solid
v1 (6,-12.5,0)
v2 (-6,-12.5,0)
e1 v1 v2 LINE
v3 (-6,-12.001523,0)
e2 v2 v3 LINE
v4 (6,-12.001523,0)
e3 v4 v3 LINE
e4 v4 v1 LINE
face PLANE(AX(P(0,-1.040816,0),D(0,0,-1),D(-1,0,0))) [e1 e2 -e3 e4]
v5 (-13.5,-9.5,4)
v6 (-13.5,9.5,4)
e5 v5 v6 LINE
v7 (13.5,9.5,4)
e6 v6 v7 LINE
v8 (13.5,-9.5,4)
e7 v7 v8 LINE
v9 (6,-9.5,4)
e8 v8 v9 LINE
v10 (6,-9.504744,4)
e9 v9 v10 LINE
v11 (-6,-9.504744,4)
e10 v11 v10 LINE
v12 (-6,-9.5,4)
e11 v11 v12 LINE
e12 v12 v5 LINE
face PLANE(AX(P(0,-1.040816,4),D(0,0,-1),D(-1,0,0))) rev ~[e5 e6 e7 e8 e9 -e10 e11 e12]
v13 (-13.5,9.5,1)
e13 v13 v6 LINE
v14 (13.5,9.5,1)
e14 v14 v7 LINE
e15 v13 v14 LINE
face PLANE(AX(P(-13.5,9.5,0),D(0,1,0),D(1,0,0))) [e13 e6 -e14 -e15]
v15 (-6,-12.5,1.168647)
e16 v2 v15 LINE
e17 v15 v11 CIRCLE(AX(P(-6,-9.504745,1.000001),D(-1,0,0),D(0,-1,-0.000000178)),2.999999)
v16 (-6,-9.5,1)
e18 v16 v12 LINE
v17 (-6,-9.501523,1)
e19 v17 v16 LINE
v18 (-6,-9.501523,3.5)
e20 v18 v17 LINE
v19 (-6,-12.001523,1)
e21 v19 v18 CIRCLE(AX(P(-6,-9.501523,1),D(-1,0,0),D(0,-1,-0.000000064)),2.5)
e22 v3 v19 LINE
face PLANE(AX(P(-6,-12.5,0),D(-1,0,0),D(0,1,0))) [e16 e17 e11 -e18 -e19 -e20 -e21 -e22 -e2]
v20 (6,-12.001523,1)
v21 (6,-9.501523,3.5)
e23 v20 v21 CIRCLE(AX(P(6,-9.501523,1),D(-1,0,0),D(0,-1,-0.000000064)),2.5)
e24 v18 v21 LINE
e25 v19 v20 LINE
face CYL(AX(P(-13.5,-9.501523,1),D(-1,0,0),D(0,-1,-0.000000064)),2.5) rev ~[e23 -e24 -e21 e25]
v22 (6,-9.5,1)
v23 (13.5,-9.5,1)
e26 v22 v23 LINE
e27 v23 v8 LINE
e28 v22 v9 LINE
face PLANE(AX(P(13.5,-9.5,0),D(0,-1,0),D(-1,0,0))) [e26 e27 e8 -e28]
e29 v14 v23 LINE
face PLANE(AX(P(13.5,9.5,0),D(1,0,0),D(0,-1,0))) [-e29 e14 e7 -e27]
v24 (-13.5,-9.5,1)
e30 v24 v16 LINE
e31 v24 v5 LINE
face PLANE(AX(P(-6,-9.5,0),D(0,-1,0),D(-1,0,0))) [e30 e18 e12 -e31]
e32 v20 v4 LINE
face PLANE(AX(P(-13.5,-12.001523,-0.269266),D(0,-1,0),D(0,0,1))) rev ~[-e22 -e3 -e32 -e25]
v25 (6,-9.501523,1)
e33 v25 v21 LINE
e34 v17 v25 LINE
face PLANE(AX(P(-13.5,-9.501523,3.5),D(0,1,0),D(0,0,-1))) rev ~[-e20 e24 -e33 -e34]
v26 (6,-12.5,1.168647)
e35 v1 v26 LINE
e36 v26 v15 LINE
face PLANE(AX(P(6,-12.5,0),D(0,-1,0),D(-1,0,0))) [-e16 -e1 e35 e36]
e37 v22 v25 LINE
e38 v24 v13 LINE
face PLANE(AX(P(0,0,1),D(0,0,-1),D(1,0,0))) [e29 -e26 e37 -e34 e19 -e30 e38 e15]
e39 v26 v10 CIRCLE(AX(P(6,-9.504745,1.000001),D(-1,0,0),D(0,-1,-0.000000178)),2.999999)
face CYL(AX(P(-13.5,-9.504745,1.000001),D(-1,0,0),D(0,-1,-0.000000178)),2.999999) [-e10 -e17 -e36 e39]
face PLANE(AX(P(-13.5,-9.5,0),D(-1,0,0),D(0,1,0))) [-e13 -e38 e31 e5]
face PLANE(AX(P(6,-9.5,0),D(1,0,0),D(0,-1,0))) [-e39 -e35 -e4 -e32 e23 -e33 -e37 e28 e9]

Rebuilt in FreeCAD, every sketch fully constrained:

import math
import FreeCAD as App
import Part
import Sketcher
Q = App.Units.Quantity

doc = App.newDocument("Part")
params = doc.addObject("Spreadsheet::Sheet", "Params")
for row, (alias, value) in enumerate([
    ("sketch1_width", "27 mm"),
    ("sketch1_width2", "12 mm"),
    ("sketch1_height", "19 mm"),
    ("sketch1_height2", "3 mm"),
    ("pad1_length", "4 mm"),
    ("sketch2_width", "27 mm"),
    ("sketch2_height", "19 mm"),
    ("pocket1_length", "1 mm"),
    ("sketch3_radius", "2.999999 mm"),
    ("pocket2_length", "27 mm"),
    ("sketch4_radius", "2.5 mm"),
    ("pocket3_length", "27 mm"),
], start=1):
    params.set(f"A{row}", alias)
    params.set(f"B{row}", "=" + value)
    params.setAlias(f"B{row}", alias)

body = doc.addObject("PartDesign::Body", "Body")

# Sketch on XY plane
sketch1 = body.newObject("Sketcher::SketchObject", "Sketch")
sketch1.AttachmentSupport = (doc.getObject("XY_Plane"), [""])
sketch1.MapMode = "FlatFace"
sketch1.addGeometry(Part.LineSegment(App.Vector(13.5, 9.5, 0), App.Vector(-13.5, 9.5, 0)), False)
sketch1.addGeometry(Part.LineSegment(App.Vector(-13.5, 9.5, 0), App.Vector(-13.5, -9.5, 0)), False)
sketch1.addGeometry(Part.LineSegment(App.Vector(-13.5, -9.5, 0), App.Vector(-6, -9.5, 0)), False)
sketch1.addGeometry(Part.LineSegment(App.Vector(-6, -9.5, 0), App.Vector(-6, -12.5, 0)), False)
sketch1.addGeometry(Part.LineSegment(App.Vector(-6, -12.5, 0), App.Vector(6, -12.5, 0)), False)
sketch1.addGeometry(Part.LineSegment(App.Vector(6, -12.5, 0), App.Vector(6, -9.5, 0)), False)
sketch1.addGeometry(Part.LineSegment(App.Vector(6, -9.5, 0), App.Vector(13.5, -9.5, 0)), False)
sketch1.addGeometry(Part.LineSegment(App.Vector(13.5, -9.5, 0), App.Vector(13.5, 9.5, 0)), False)
sketch1.addConstraint(Sketcher.Constraint("Coincident", 0, 2, 1, 1))
sketch1.addConstraint(Sketcher.Constraint("Coincident", 1, 2, 2, 1))
sketch1.addConstraint(Sketcher.Constraint("Coincident", 2, 2, 3, 1))
sketch1.addConstraint(Sketcher.Constraint("Coincident", 3, 2, 4, 1))
sketch1.addConstraint(Sketcher.Constraint("Coincident", 4, 2, 5, 1))
sketch1.addConstraint(Sketcher.Constraint("Coincident", 5, 2, 6, 1))
sketch1.addConstraint(Sketcher.Constraint("Coincident", 6, 2, 7, 1))
sketch1.addConstraint(Sketcher.Constraint("Coincident", 7, 2, 0, 1))
sketch1.addConstraint(Sketcher.Constraint("Horizontal", 0))
sketch1.addConstraint(Sketcher.Constraint("Vertical", 1))
sketch1.addConstraint(Sketcher.Constraint("Horizontal", 2))
sketch1.addConstraint(Sketcher.Constraint("Vertical", 3))
sketch1.addConstraint(Sketcher.Constraint("Horizontal", 4))
sketch1.addConstraint(Sketcher.Constraint("Vertical", 5))
sketch1.addConstraint(Sketcher.Constraint("Horizontal", 6))
sketch1.addConstraint(Sketcher.Constraint("Vertical", 7))
sketch1.addConstraint(Sketcher.Constraint("Symmetric", 0, 2, 6, 2, -1, 1))
sketch1.addConstraint(Sketcher.Constraint("Symmetric", 2, 2, 5, 2, -2))
sketch1.addConstraint(Sketcher.Constraint("DistanceX", 0, 2, 0, 1, Q("27 mm")))
sketch1.addConstraint(Sketcher.Constraint("DistanceX", 4, 1, 4, 2, Q("12 mm")))
sketch1.addConstraint(Sketcher.Constraint("DistanceY", 1, 2, 1, 1, Q("19 mm")))
sketch1.addConstraint(Sketcher.Constraint("DistanceY", 3, 2, 3, 1, Q("3 mm")))
sketch1.setExpression("Constraints[18]", "Params.sketch1_width")
sketch1.setExpression("Constraints[19]", "Params.sketch1_width2")
sketch1.setExpression("Constraints[20]", "Params.sketch1_height")
sketch1.setExpression("Constraints[21]", "Params.sketch1_height2")
pad1 = body.newObject("PartDesign::Pad", "Pad")
pad1.Profile = sketch1
pad1.setExpression("Length", "Params.pad1_length")

# Sketch on XY plane
sketch2 = body.newObject("Sketcher::SketchObject", "Sketch001")
sketch2.AttachmentSupport = (doc.getObject("XY_Plane"), [""])
sketch2.MapMode = "FlatFace"
sketch2.addGeometry(Part.LineSegment(App.Vector(-13.5, -9.5, 0), App.Vector(-13.5, 9.5, 0)), False)
sketch2.addGeometry(Part.LineSegment(App.Vector(-13.5, 9.5, 0), App.Vector(13.5, 9.5, 0)), False)
sketch2.addGeometry(Part.LineSegment(App.Vector(13.5, 9.5, 0), App.Vector(13.5, -9.5, 0)), False)
sketch2.addGeometry(Part.LineSegment(App.Vector(13.5, -9.5, 0), App.Vector(-13.5, -9.5, 0)), False)
sketch2.addConstraint(Sketcher.Constraint("Coincident", 0, 2, 1, 1))
sketch2.addConstraint(Sketcher.Constraint("Coincident", 1, 2, 2, 1))
sketch2.addConstraint(Sketcher.Constraint("Coincident", 2, 2, 3, 1))
sketch2.addConstraint(Sketcher.Constraint("Coincident", 3, 2, 0, 1))
sketch2.addConstraint(Sketcher.Constraint("Vertical", 0))
sketch2.addConstraint(Sketcher.Constraint("Horizontal", 1))
sketch2.addConstraint(Sketcher.Constraint("Vertical", 2))
sketch2.addConstraint(Sketcher.Constraint("Horizontal", 3))
sketch2.addConstraint(Sketcher.Constraint("Symmetric", 0, 2, 2, 2, -1, 1))
sketch2.addConstraint(Sketcher.Constraint("DistanceX", 1, 1, 1, 2, Q("27 mm")))
sketch2.addConstraint(Sketcher.Constraint("DistanceY", 0, 1, 0, 2, Q("19 mm")))
sketch2.setExpression("Constraints[9]", "Params.sketch2_width")
sketch2.setExpression("Constraints[10]", "Params.sketch2_height")
pocket1 = body.newObject("PartDesign::Pocket", "Pocket")
pocket1.Profile = sketch2
pocket1.setExpression("Length", "Params.pocket1_length")
pocket1.Reversed = True

# Sketch on YZ plane
sketch3 = body.newObject("Sketcher::SketchObject", "Sketch002")
sketch3.AttachmentSupport = (doc.getObject("YZ_Plane"), [""])
sketch3.MapMode = "FlatFace"
sketch3.AttachmentOffset = App.Placement(App.Vector(0, 0, -13.5), App.Rotation())
sketch3.addGeometry(Part.ArcOfCircle(Part.Circle(App.Vector(-9.504745, 1.000001, 0), App.Vector(0, 0, 1), 2.999999), math.radians(89.99999), math.radians(180.00001)), False)
sketch3.addGeometry(Part.LineSegment(App.Vector(-12.504744, 1, 0), App.Vector(-13.03316, 1, 0)), False)
sketch3.addGeometry(Part.LineSegment(App.Vector(-13.03316, 1, 0), App.Vector(-13.03316, 5.572417, 0)), False)
sketch3.addGeometry(Part.LineSegment(App.Vector(-13.03316, 5.572417, 0), App.Vector(-9.504744, 5.572417, 0)), False)
sketch3.addGeometry(Part.LineSegment(App.Vector(-9.504744, 5.572417, 0), App.Vector(-9.504744, 4, 0)), False)
sketch3.addConstraint(Sketcher.Constraint("Coincident", 0, 2, 1, 1))
sketch3.addConstraint(Sketcher.Constraint("Coincident", 1, 2, 2, 1))
sketch3.addConstraint(Sketcher.Constraint("Coincident", 2, 2, 3, 1))
sketch3.addConstraint(Sketcher.Constraint("Coincident", 3, 2, 4, 1))
sketch3.addConstraint(Sketcher.Constraint("Coincident", 4, 2, 0, 1))
sketch3.addConstraint(Sketcher.Constraint("Horizontal", 1))
sketch3.addConstraint(Sketcher.Constraint("Vertical", 2))
sketch3.addConstraint(Sketcher.Constraint("Horizontal", 3))
sketch3.addConstraint(Sketcher.Constraint("Vertical", 4))
sketch3.addConstraint(Sketcher.Constraint("Vertical", 0, 3, 3, 2))
sketch3.addConstraint(Sketcher.Constraint("Radius", 0, Q("2.999999 mm")))
sketch3.addConstraint(Sketcher.Constraint("DistanceY", -1, 1, 0, 3, Q("1.000001 mm")))
sketch3.addConstraint(Sketcher.Constraint("DistanceY", -1, 1, 0, 2, Q("1 mm")))
sketch3.addConstraint(Sketcher.Constraint("DistanceX", 1, 2, 1, 1, Q("0.528416 mm")))
sketch3.addConstraint(Sketcher.Constraint("DistanceY", 2, 1, 2, 2, Q("4.572417 mm")))
sketch3.addConstraint(Sketcher.Constraint("DistanceX", 1, 2, -1, 1, Q("13.03316 mm")))
sketch3.setExpression("Constraints[10]", "Params.sketch3_radius")
pocket2 = body.newObject("PartDesign::Pocket", "Pocket001")
pocket2.Profile = sketch3
pocket2.setExpression("Length", "Params.pocket2_length")
pocket2.Reversed = True

# Sketch on YZ plane
sketch4 = body.newObject("Sketcher::SketchObject", "Sketch003")
sketch4.AttachmentSupport = (doc.getObject("YZ_Plane"), [""])
sketch4.MapMode = "FlatFace"
sketch4.AttachmentOffset = App.Placement(App.Vector(0, 0, -13.5), App.Rotation())
sketch4.addGeometry(Part.ArcOfCircle(Part.Circle(App.Vector(-9.501523, 1, 0), App.Vector(0, 0, 1), 2.5), math.radians(89.999996), math.radians(180.000004)), False)
sketch4.addGeometry(Part.LineSegment(App.Vector(-9.501523, 3.5, 0), App.Vector(-9.501523, 1, 0)), False)
sketch4.addGeometry(Part.LineSegment(App.Vector(-9.501523, 1, 0), App.Vector(-9.324189, 1, 0)), False)
sketch4.addGeometry(Part.LineSegment(App.Vector(-9.324189, 1, 0), App.Vector(-9.324189, -0.269266, 0)), False)
sketch4.addGeometry(Part.LineSegment(App.Vector(-9.324189, -0.269266, 0), App.Vector(-12.001523, -0.269266, 0)), False)
sketch4.addGeometry(Part.LineSegment(App.Vector(-12.001523, -0.269266, 0), App.Vector(-12.001523, 1, 0)), False)
sketch4.addConstraint(Sketcher.Constraint("Coincident", 0, 1, 1, 1))
sketch4.addConstraint(Sketcher.Constraint("Coincident", 1, 2, 2, 1))
sketch4.addConstraint(Sketcher.Constraint("Coincident", 2, 2, 3, 1))
sketch4.addConstraint(Sketcher.Constraint("Coincident", 3, 2, 4, 1))
sketch4.addConstraint(Sketcher.Constraint("Coincident", 4, 2, 5, 1))
sketch4.addConstraint(Sketcher.Constraint("Tangent", 5, 2, 0, 2))
sketch4.addConstraint(Sketcher.Constraint("Vertical", 1))
sketch4.addConstraint(Sketcher.Constraint("Horizontal", 2))
sketch4.addConstraint(Sketcher.Constraint("Vertical", 3))
sketch4.addConstraint(Sketcher.Constraint("Horizontal", 4))
sketch4.addConstraint(Sketcher.Constraint("Vertical", 5))
sketch4.addConstraint(Sketcher.Constraint("Coincident", 1, 2, 0, 3))
sketch4.addConstraint(Sketcher.Constraint("Radius", 0, Q("2.5 mm")))
sketch4.addConstraint(Sketcher.Constraint("DistanceY", -1, 1, 0, 3, Q("1 mm")))
sketch4.addConstraint(Sketcher.Constraint("DistanceX", 2, 1, 2, 2, Q("0.177334 mm")))
sketch4.addConstraint(Sketcher.Constraint("DistanceY", 3, 2, 3, 1, Q("1.269266 mm")))
sketch4.addConstraint(Sketcher.Constraint("DistanceX", 2, 2, -1, 1, Q("9.324189 mm")))
sketch4.setExpression("Constraints[12]", "Params.sketch4_radius")
pocket3 = body.newObject("PartDesign::Pocket", "Pocket002")
pocket3.Profile = sketch4
pocket3.setExpression("Length", "Params.pocket3_length")
pocket3.Reversed = True

doc.recompute()
